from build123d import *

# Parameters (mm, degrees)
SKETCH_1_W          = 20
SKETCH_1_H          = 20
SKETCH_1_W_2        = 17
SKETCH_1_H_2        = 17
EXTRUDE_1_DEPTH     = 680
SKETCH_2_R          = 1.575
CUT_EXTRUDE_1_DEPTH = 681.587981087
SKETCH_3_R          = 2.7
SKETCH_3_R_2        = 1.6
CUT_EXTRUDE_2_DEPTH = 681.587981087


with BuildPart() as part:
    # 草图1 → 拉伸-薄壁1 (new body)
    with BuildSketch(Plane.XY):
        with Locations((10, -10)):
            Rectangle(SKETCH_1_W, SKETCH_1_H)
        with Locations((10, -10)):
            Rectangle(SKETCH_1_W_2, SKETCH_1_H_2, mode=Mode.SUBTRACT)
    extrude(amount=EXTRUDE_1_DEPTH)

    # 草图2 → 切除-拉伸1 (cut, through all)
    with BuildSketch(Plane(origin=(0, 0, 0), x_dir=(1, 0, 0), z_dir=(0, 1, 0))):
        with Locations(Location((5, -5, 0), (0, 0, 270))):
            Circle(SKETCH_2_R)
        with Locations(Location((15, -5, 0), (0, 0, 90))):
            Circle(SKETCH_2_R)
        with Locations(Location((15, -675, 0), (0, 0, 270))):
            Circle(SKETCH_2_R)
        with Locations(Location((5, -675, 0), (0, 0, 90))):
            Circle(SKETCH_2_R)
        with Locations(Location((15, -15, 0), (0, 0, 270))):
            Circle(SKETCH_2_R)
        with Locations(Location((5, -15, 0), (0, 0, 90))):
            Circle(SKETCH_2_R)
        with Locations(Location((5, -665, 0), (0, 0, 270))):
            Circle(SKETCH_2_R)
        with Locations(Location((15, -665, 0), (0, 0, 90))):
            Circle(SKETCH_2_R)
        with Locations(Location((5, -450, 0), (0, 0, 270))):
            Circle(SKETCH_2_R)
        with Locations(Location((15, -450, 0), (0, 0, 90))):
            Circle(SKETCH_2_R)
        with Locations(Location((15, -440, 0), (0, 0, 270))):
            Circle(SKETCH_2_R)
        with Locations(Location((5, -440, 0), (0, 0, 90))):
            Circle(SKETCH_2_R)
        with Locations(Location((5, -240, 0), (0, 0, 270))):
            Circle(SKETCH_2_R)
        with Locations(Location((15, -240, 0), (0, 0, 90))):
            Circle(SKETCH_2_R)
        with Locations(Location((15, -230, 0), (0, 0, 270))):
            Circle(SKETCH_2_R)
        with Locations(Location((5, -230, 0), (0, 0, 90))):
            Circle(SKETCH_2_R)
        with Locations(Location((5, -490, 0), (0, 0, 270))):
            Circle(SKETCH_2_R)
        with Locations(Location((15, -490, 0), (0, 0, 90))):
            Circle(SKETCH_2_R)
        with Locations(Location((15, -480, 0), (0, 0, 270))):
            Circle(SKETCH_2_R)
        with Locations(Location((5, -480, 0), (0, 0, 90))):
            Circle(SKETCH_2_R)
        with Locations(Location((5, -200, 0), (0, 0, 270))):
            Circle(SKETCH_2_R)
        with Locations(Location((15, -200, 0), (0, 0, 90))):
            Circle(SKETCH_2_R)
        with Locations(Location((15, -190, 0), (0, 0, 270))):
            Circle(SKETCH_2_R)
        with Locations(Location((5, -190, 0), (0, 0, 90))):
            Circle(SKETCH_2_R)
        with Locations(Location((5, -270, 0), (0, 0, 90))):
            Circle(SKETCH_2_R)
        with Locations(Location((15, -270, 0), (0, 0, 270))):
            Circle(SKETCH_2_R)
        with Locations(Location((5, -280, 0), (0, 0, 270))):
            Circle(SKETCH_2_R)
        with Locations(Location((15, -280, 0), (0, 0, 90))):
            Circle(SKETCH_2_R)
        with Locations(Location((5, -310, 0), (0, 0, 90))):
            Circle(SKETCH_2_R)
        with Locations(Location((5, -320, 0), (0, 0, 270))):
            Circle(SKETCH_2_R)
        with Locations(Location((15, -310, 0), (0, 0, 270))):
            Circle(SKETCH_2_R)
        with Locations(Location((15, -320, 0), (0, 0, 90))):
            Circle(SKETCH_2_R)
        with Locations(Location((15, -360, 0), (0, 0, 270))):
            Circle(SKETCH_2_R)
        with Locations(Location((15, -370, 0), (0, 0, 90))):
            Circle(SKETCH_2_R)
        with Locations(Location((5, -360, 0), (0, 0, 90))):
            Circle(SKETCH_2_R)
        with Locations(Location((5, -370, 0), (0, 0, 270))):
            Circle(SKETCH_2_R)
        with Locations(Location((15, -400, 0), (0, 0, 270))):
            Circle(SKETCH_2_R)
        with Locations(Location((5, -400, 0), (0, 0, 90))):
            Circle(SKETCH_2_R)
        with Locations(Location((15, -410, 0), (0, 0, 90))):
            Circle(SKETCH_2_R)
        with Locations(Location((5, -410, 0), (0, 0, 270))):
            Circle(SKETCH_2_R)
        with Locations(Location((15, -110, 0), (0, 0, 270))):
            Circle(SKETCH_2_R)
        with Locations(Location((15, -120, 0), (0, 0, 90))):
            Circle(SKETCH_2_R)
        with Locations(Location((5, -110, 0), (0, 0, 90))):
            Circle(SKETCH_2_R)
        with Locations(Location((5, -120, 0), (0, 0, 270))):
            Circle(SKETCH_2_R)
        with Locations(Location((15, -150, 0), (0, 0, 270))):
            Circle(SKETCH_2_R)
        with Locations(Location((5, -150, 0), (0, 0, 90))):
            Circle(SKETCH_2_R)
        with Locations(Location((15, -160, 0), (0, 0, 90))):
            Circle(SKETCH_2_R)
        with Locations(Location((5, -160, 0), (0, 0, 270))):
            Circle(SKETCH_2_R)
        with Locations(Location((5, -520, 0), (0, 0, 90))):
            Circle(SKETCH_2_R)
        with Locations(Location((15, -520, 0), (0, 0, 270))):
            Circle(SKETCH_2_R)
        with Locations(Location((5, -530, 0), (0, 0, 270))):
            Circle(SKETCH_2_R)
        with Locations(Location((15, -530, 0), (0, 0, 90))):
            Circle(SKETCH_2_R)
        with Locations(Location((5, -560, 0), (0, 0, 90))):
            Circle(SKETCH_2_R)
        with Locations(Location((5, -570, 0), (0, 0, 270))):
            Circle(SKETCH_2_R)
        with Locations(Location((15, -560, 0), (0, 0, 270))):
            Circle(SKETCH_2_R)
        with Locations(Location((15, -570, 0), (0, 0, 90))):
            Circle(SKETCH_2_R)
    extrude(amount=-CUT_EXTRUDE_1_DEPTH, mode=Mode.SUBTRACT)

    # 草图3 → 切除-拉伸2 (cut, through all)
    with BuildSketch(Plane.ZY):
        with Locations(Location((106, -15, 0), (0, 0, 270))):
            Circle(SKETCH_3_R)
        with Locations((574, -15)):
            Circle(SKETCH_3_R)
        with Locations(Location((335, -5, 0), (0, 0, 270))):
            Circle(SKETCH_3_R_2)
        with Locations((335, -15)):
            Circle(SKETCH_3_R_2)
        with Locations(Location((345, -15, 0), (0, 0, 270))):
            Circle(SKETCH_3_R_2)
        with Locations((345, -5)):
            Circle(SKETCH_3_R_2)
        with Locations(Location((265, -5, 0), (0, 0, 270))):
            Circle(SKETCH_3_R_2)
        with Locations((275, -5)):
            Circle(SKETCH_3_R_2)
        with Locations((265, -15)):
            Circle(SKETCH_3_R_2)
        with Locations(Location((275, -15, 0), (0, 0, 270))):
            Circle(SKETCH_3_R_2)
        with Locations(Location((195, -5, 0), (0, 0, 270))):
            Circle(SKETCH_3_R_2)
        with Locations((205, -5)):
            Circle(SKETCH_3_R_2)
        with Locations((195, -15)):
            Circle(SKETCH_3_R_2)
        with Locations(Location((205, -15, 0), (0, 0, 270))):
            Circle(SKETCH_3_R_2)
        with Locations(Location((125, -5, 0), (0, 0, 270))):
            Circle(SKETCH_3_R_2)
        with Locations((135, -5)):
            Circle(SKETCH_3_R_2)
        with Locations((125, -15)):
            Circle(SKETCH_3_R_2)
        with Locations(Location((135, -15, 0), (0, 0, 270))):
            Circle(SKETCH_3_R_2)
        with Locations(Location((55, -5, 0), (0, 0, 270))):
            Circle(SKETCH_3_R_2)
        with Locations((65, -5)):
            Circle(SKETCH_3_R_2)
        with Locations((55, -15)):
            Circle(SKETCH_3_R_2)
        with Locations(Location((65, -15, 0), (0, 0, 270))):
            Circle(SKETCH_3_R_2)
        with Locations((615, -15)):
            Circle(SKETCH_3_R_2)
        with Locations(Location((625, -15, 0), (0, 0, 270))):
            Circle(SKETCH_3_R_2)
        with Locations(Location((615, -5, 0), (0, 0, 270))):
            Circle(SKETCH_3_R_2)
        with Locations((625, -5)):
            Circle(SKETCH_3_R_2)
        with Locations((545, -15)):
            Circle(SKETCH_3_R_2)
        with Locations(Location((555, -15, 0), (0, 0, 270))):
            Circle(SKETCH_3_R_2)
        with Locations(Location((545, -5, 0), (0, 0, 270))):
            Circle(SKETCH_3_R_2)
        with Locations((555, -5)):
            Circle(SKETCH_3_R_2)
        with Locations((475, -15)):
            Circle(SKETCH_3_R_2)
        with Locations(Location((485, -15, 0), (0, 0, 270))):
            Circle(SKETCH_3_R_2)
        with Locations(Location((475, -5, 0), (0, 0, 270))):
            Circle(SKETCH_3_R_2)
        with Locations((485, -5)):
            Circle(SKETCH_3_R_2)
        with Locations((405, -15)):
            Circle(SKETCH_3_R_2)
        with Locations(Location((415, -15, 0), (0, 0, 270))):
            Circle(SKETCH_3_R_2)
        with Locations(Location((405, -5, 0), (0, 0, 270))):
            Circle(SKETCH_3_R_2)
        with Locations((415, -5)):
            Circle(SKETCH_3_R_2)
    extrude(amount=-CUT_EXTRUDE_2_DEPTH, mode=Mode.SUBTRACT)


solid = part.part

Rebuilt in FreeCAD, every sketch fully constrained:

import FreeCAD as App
import Part
import Sketcher
from FreeCAD import Vector


def add_polygon(sketch, points):
    """Adds a closed chain of lines whose ends are joined by coincident constraints."""
    first, n = sketch.GeometryCount, len(points)
    for a, b in zip(points, points[1:] + points[:1]):
        sketch.addGeometry(Part.LineSegment(App.Vector(*a, 0), App.Vector(*b, 0)), False)
    for i in range(n):
        sketch.addConstraint(Sketcher.Constraint("Coincident", first + i, 2, first + (i + 1) % n, 1))

doc = App.newDocument("Part")
body = doc.addObject("PartDesign::Body", "Body")

# Sketch on XY plane
sketch1 = body.newObject("Sketcher::SketchObject", "Sketch")
sketch1.AttachmentSupport = (doc.getObject("XY_Plane"), [""])
sketch1.MapMode = "FlatFace"
add_polygon(sketch1, [(0, 0), (0, -20), (20, -20), (20, 0)])  # lines 0-3
add_polygon(sketch1, [(18, -18), (2, -18), (2, -2), (18, -2)])  # lines 4-7
sketch1.addConstraint([
    Sketcher.Constraint("Vertical", 0),
    Sketcher.Constraint("Horizontal", 1),
    Sketcher.Constraint("Vertical", 2),
    Sketcher.Constraint("Horizontal", 3),
    Sketcher.Constraint("Horizontal", 4),
    Sketcher.Constraint("Vertical", 5),
    Sketcher.Constraint("Horizontal", 6),
    Sketcher.Constraint("Vertical", 7),
    Sketcher.Constraint("Coincident", 3, 2, -1, 1),
    Sketcher.Constraint("Equal", 3, 0),
    Sketcher.Constraint("Equal", 6, 5),
    Sketcher.Constraint("DistanceX", 1, 1, 1, 2, 20.0),
    Sketcher.Constraint("DistanceX", 4, 2, 4, 1, 17.0),
    Sketcher.Constraint("DistanceX", -1, 1, 4, 2, 1.5),
    Sketcher.Constraint("DistanceY", 4, 2, -1, 1, 18.5),
])
pad1 = body.newObject("PartDesign::Pad", "Pad")
pad1.Profile = sketch1
pad1.Length = 680

# Sketch on XZ plane
sketch2 = body.newObject("Sketcher::SketchObject", "Sketch001")
sketch2.AttachmentSupport = (doc.getObject("XZ_Plane"), [""])
sketch2.MapMode = "FlatFace"
sketch2.addGeometry([
    Part.Circle(Vector(5, 5, 0), Vector(0, 0, 1), 1.6),  # 0
    Part.Circle(Vector(15, 5, 0), Vector(0, 0, 1), 1.6),  # 1
    Part.Circle(Vector(15, 675, 0), Vector(0, 0, 1), 1.6),  # 2
    Part.Circle(Vector(5, 675, 0), Vector(0, 0, 1), 1.6),  # 3
    Part.Circle(Vector(15, 15, 0), Vector(0, 0, 1), 1.6),  # 4
    Part.Circle(Vector(5, 15, 0), Vector(0, 0, 1), 1.6),  # 5
    Part.Circle(Vector(5, 665, 0), Vector(0, 0, 1), 1.6),  # 6
    Part.Circle(Vector(15, 665, 0), Vector(0, 0, 1), 1.6),  # 7
    Part.Circle(Vector(5, 450, 0), Vector(0, 0, 1), 1.6),  # 8
    Part.Circle(Vector(15, 450, 0), Vector(0, 0, 1), 1.6),  # 9
    Part.Circle(Vector(15, 440, 0), Vector(0, 0, 1), 1.6),  # 10
    Part.Circle(Vector(5, 440, 0), Vector(0, 0, 1), 1.6),  # 11
    Part.Circle(Vector(5, 240, 0), Vector(0, 0, 1), 1.6),  # 12
    Part.Circle(Vector(15, 240, 0), Vector(0, 0, 1), 1.6),  # 13
    Part.Circle(Vector(15, 230, 0), Vector(0, 0, 1), 1.6),  # 14
    Part.Circle(Vector(5, 230, 0), Vector(0, 0, 1), 1.6),  # 15
    Part.Circle(Vector(5, 490, 0), Vector(0, 0, 1), 1.6),  # 16
    Part.Circle(Vector(15, 490, 0), Vector(0, 0, 1), 1.6),  # 17
    Part.Circle(Vector(15, 480, 0), Vector(0, 0, 1), 1.6),  # 18
    Part.Circle(Vector(5, 480, 0), Vector(0, 0, 1), 1.6),  # 19
    Part.Circle(Vector(5, 200, 0), Vector(0, 0, 1), 1.6),  # 20
    Part.Circle(Vector(15, 200, 0), Vector(0, 0, 1), 1.6),  # 21
    Part.Circle(Vector(15, 190, 0), Vector(0, 0, 1), 1.6),  # 22
    Part.Circle(Vector(5, 190, 0), Vector(0, 0, 1), 1.6),  # 23
    Part.Circle(Vector(5, 270, 0), Vector(0, 0, 1), 1.6),  # 24
    Part.Circle(Vector(15, 270, 0), Vector(0, 0, 1), 1.6),  # 25
    Part.Circle(Vector(5, 280, 0), Vector(0, 0, 1), 1.6),  # 26
    Part.Circle(Vector(15, 280, 0), Vector(0, 0, 1), 1.6),  # 27
    Part.Circle(Vector(5, 310, 0), Vector(0, 0, 1), 1.6),  # 28
    Part.Circle(Vector(5, 320, 0), Vector(0, 0, 1), 1.6),  # 29
    Part.Circle(Vector(15, 310, 0), Vector(0, 0, 1), 1.6),  # 30
    Part.Circle(Vector(15, 320, 0), Vector(0, 0, 1), 1.6),  # 31
    Part.Circle(Vector(15, 360, 0), Vector(0, 0, 1), 1.6),  # 32
    Part.Circle(Vector(15, 370, 0), Vector(0, 0, 1), 1.6),  # 33
    Part.Circle(Vector(5, 360, 0), Vector(0, 0, 1), 1.6),  # 34
    Part.Circle(Vector(5, 370, 0), Vector(0, 0, 1), 1.6),  # 35
    Part.Circle(Vector(15, 400, 0), Vector(0, 0, 1), 1.6),  # 36
    Part.Circle(Vector(5, 400, 0), Vector(0, 0, 1), 1.6),  # 37
    Part.Circle(Vector(15, 410, 0), Vector(0, 0, 1), 1.6),  # 38
    Part.Circle(Vector(5, 410, 0), Vector(0, 0, 1), 1.6),  # 39
    Part.Circle(Vector(15, 110, 0), Vector(0, 0, 1), 1.6),  # 40
    Part.Circle(Vector(15, 120, 0), Vector(0, 0, 1), 1.6),  # 41
    Part.Circle(Vector(5, 110, 0), Vector(0, 0, 1), 1.6),  # 42
    Part.Circle(Vector(5, 120, 0), Vector(0, 0, 1), 1.6),  # 43
    Part.Circle(Vector(15, 150, 0), Vector(0, 0, 1), 1.6),  # 44
    Part.Circle(Vector(5, 150, 0), Vector(0, 0, 1), 1.6),  # 45
    Part.Circle(Vector(15, 160, 0), Vector(0, 0, 1), 1.6),  # 46
    Part.Circle(Vector(5, 160, 0), Vector(0, 0, 1), 1.6),  # 47
    Part.Circle(Vector(5, 520, 0), Vector(0, 0, 1), 1.6),  # 48
    Part.Circle(Vector(15, 520, 0), Vector(0, 0, 1), 1.6),  # 49
    Part.Circle(Vector(5, 530, 0), Vector(0, 0, 1), 1.6),  # 50
    Part.Circle(Vector(15, 530, 0), Vector(0, 0, 1), 1.6),  # 51
    Part.Circle(Vector(5, 560, 0), Vector(0, 0, 1), 1.6),  # 52
    Part.Circle(Vector(5, 570, 0), Vector(0, 0, 1), 1.6),  # 53
    Part.Circle(Vector(15, 560, 0), Vector(0, 0, 1), 1.6),  # 54
    Part.Circle(Vector(15, 570, 0), Vector(0, 0, 1), 1.6),  # 55
], False)
sketch2.addConstraint([
    Sketcher.Constraint("Equal", 0, 1),
    Sketcher.Constraint("Equal", 1, 2),
    Sketcher.Constraint("Equal", 2, 3),
    Sketcher.Constraint("Equal", 3, 4),
    Sketcher.Constraint("Equal", 4, 5),
    Sketcher.Constraint("Equal", 5, 6),
    Sketcher.Constraint("Equal", 6, 7),
    Sketcher.Constraint("Equal", 7, 8),
    Sketcher.Constraint("Equal", 8, 9),
    Sketcher.Constraint("Equal", 9, 10),
    Sketcher.Constraint("Equal", 10, 11),
    Sketcher.Constraint("Equal", 11, 12),
    Sketcher.Constraint("Equal", 12, 13),
    Sketcher.Constraint("Equal", 13, 14),
    Sketcher.Constraint("Equal", 14, 15),
    Sketcher.Constraint("Equal", 15, 16),
    Sketcher.Constraint("Equal", 16, 17),
    Sketcher.Constraint("Equal", 17, 18),
    Sketcher.Constraint("Equal", 18, 19),
    Sketcher.Constraint("Equal", 19, 20),
    Sketcher.Constraint("Equal", 20, 21),
    Sketcher.Constraint("Equal", 21, 22),
    Sketcher.Constraint("Equal", 22, 23),
    Sketcher.Constraint("Equal", 23, 24),
    Sketcher.Constraint("Equal", 24, 25),
    Sketcher.Constraint("Equal", 25, 26),
    Sketcher.Constraint("Equal", 26, 27),
    Sketcher.Constraint("Equal", 27, 28),
    Sketcher.Constraint("Equal", 28, 29),
    Sketcher.Constraint("Equal", 29, 30),
    Sketcher.Constraint("Equal", 30, 31),
    Sketcher.Constraint("Equal", 31, 32),
    Sketcher.Constraint("Equal", 32, 33),
    Sketcher.Constraint("Equal", 33, 34),
    Sketcher.Constraint("Equal", 34, 35),
    Sketcher.Constraint("Equal", 35, 36),
    Sketcher.Constraint("Equal", 36, 37),
    Sketcher.Constraint("Equal", 37, 38),
    Sketcher.Constraint("Equal", 38, 39),
    Sketcher.Constraint("Equal", 39, 40),
    Sketcher.Constraint("Equal", 40, 41),
    Sketcher.Constraint("Equal", 41, 42),
    Sketcher.Constraint("Equal", 42, 43),
    Sketcher.Constraint("Equal", 43, 44),
    Sketcher.Constraint("Equal", 44, 45),
    Sketcher.Constraint("Equal", 45, 46),
    Sketcher.Constraint("Equal", 46, 47),
    Sketcher.Constraint("Equal", 47, 48),
    Sketcher.Constraint("Equal", 48, 49),
    Sketcher.Constraint("Equal", 49, 50),
    Sketcher.Constraint("Equal", 50, 51),
    Sketcher.Constraint("Equal", 51, 52),
    Sketcher.Constraint("Equal", 52, 53),
    Sketcher.Constraint("Equal", 53, 54),
    Sketcher.Constraint("Equal", 54, 55),
    Sketcher.Constraint("Horizontal", 0, 3, 1, 3),
    Sketcher.Constraint("Horizontal", 2, 3, 3, 3),
    Sketcher.Constraint("Horizontal", 4, 3, 5, 3),
    Sketcher.Constraint("Horizontal", 6, 3, 7, 3),
    Sketcher.Constraint("Horizontal", 8, 3, 9, 3),
    Sketcher.Constraint("Horizontal", 10, 3, 11, 3),
    Sketcher.Constraint("Horizontal", 12, 3, 13, 3),
    Sketcher.Constraint("Horizontal", 14, 3, 15, 3),
    Sketcher.Constraint("Horizontal", 16, 3, 17, 3),
    Sketcher.Constraint("Horizontal", 18, 3, 19, 3),
    Sketcher.Constraint("Horizontal", 20, 3, 21, 3),
    Sketcher.Constraint("Horizontal", 22, 3, 23, 3),
    Sketcher.Constraint("Horizontal", 24, 3, 25, 3),
    Sketcher.Constraint("Horizontal", 26, 3, 27, 3),
    Sketcher.Constraint("Horizontal", 28, 3, 30, 3),
    Sketcher.Constraint("Horizontal", 29, 3, 31, 3),
    Sketcher.Constraint("Horizontal", 32, 3, 34, 3),
    Sketcher.Constraint("Horizontal", 33, 3, 35, 3),
    Sketcher.Constraint("Horizontal", 36, 3, 37, 3),
    Sketcher.Constraint("Horizontal", 38, 3, 39, 3),
    Sketcher.Constraint("Horizontal", 40, 3, 42, 3),
    Sketcher.Constraint("Horizontal", 41, 3, 43, 3),
    Sketcher.Constraint("Horizontal", 44, 3, 45, 3),
    Sketcher.Constraint("Horizontal", 46, 3, 47, 3),
    Sketcher.Constraint("Horizontal", 48, 3, 49, 3),
    Sketcher.Constraint("Horizontal", 50, 3, 51, 3),
    Sketcher.Constraint("Horizontal", 52, 3, 54, 3),
    Sketcher.Constraint("Horizontal", 53, 3, 55, 3),
    Sketcher.Constraint("Vertical", 1, 3, 2, 3),
    Sketcher.Constraint("Vertical", 0, 3, 3, 3),
    Sketcher.Constraint("Vertical", 2, 3, 4, 3),
    Sketcher.Constraint("Vertical", 3, 3, 5, 3),
    Sketcher.Constraint("Vertical", 5, 3, 6, 3),
    Sketcher.Constraint("Vertical", 4, 3, 7, 3),
    Sketcher.Constraint("Vertical", 6, 3, 8, 3),
    Sketcher.Constraint("Vertical", 7, 3, 9, 3),
    Sketcher.Constraint("Vertical", 9, 3, 10, 3),
    Sketcher.Constraint("Vertical", 8, 3, 11, 3),
    Sketcher.Constraint("Vertical", 11, 3, 12, 3),
    Sketcher.Constraint("Vertical", 10, 3, 13, 3),
    Sketcher.Constraint("Vertical", 13, 3, 14, 3),
    Sketcher.Constraint("Vertical", 12, 3, 15, 3),
    Sketcher.Constraint("Vertical", 15, 3, 16, 3),
    Sketcher.Constraint("Vertical", 14, 3, 17, 3),
    Sketcher.Constraint("Vertical", 17, 3, 18, 3),
    Sketcher.Constraint("Vertical", 16, 3, 19, 3),
    Sketcher.Constraint("Vertical", 19, 3, 20, 3),
    Sketcher.Constraint("Vertical", 18, 3, 21, 3),
    Sketcher.Constraint("Vertical", 21, 3, 22, 3),
    Sketcher.Constraint("Vertical", 20, 3, 23, 3),
    Sketcher.Constraint("Vertical", 23, 3, 24, 3),
    Sketcher.Constraint("Vertical", 22, 3, 25, 3),
    Sketcher.Constraint("Vertical", 24, 3, 26, 3),
    Sketcher.Constraint("Vertical", 25, 3, 27, 3),
    Sketcher.Constraint("Vertical", 26, 3, 28, 3),
    Sketcher.Constraint("Vertical", 28, 3, 29, 3),
    Sketcher.Constraint("Vertical", 27, 3, 30, 3),
    Sketcher.Constraint("Vertical", 30, 3, 31, 3),
    Sketcher.Constraint("Vertical", 31, 3, 32, 3),
    Sketcher.Constraint("Vertical", 32, 3, 33, 3),
    Sketcher.Constraint("Vertical", 29, 3, 34, 3),
    Sketcher.Constraint("Vertical", 34, 3, 35, 3),
    Sketcher.Constraint("Vertical", 33, 3, 36, 3),
    Sketcher.Constraint("Vertical", 35, 3, 37, 3),
    Sketcher.Constraint("Vertical", 36, 3, 38, 3),
    Sketcher.Constraint("Vertical", 37, 3, 39, 3),
    Sketcher.Constraint("Vertical", 38, 3, 40, 3),
    Sketcher.Constraint("Vertical", 40, 3, 41, 3),
    Sketcher.Constraint("Vertical", 39, 3, 42, 3),
    Sketcher.Constraint("Vertical", 42, 3, 43, 3),
    Sketcher.Constraint("Vertical", 41, 3, 44, 3),
    Sketcher.Constraint("Vertical", 43, 3, 45, 3),
    Sketcher.Constraint("Vertical", 44, 3, 46, 3),
    Sketcher.Constraint("Vertical", 45, 3, 47, 3),
    Sketcher.Constraint("Vertical", 47, 3, 48, 3),
    Sketcher.Constraint("Vertical", 46, 3, 49, 3),
    Sketcher.Constraint("Vertical", 48, 3, 50, 3),
    Sketcher.Constraint("Vertical", 49, 3, 51, 3),
    Sketcher.Constraint("Vertical", 50, 3, 52, 3),
    Sketcher.Constraint("Vertical", 52, 3, 53, 3),
    Sketcher.Constraint("Vertical", 51, 3, 54, 3),
    Sketcher.Constraint("Vertical", 54, 3, 55, 3),
    Sketcher.Constraint("Diameter", 0, 3.15),
    Sketcher.Constraint("DistanceX", -1, 1, 0, 3, 5.0),
    Sketcher.Constraint("DistanceY", -1, 1, 0, 3, 5.0),
    Sketcher.Constraint("DistanceX", -1, 1, 1, 3, 15.0),
    Sketcher.Constraint("DistanceY", -1, 1, 2, 3, 675.0),
    Sketcher.Constraint("DistanceY", -1, 1, 4, 3, 15.0),
    Sketcher.Constraint("DistanceY", -1, 1, 6, 3, 665.0),
    Sketcher.Constraint("DistanceY", -1, 1, 8, 3, 450.0),
    Sketcher.Constraint("DistanceY", -1, 1, 10, 3, 440.0),
    Sketcher.Constraint("DistanceY", -1, 1, 12, 3, 240.0),
    Sketcher.Constraint("DistanceY", -1, 1, 14, 3, 230.0),
    Sketcher.Constraint("DistanceY", -1, 1, 16, 3, 490.0),
    Sketcher.Constraint("DistanceY", -1, 1, 18, 3, 480.0),
    Sketcher.Constraint("DistanceY", -1, 1, 20, 3, 200.0),
    Sketcher.Constraint("DistanceY", -1, 1, 22, 3, 190.0),
    Sketcher.Constraint("DistanceY", -1, 1, 24, 3, 270.0),
    Sketcher.Constraint("DistanceY", -1, 1, 26, 3, 280.0),
    Sketcher.Constraint("DistanceY", -1, 1, 28, 3, 310.0),
    Sketcher.Constraint("DistanceY", -1, 1, 29, 3, 320.0),
    Sketcher.Constraint("DistanceY", -1, 1, 32, 3, 360.0),
    Sketcher.Constraint("DistanceY", -1, 1, 33, 3, 370.0),
    Sketcher.Constraint("DistanceY", -1, 1, 36, 3, 400.0),
    Sketcher.Constraint("DistanceY", -1, 1, 38, 3, 410.0),
    Sketcher.Constraint("DistanceY", -1, 1, 40, 3, 110.0),
    Sketcher.Constraint("DistanceY", -1, 1, 41, 3, 120.0),
    Sketcher.Constraint("DistanceY", -1, 1, 44, 3, 150.0),
    Sketcher.Constraint("DistanceY", -1, 1, 46, 3, 160.0),
    Sketcher.Constraint("DistanceY", -1, 1, 48, 3, 520.0),
    Sketcher.Constraint("DistanceY", -1, 1, 50, 3, 530.0),
    Sketcher.Constraint("DistanceY", -1, 1, 52, 3, 560.0),
    Sketcher.Constraint("DistanceY", -1, 1, 53, 3, 570.0),
])
pocket1 = body.newObject("PartDesign::Pocket", "Pocket")
pocket1.Profile = sketch2
pocket1.Type = "ThroughAll"
pocket1.Reversed = True

# Sketch on YZ plane
sketch3 = body.newObject("Sketcher::SketchObject", "Sketch002")
sketch3.AttachmentSupport = (doc.getObject("YZ_Plane"), [""])
sketch3.MapMode = "FlatFace"
sketch3.addGeometry([
    Part.Circle(Vector(-15, 106, 0), Vector(0, 0, 1), 2.7),  # 0
    Part.Circle(Vector(-15, 574, 0), Vector(0, 0, 1), 2.7),  # 1
    Part.Circle(Vector(-5, 335, 0), Vector(0, 0, 1), 1.6),  # 2
    Part.Circle(Vector(-15, 335, 0), Vector(0, 0, 1), 1.6),  # 3
    Part.Circle(Vector(-15, 345, 0), Vector(0, 0, 1), 1.6),  # 4
    Part.Circle(Vector(-5, 345, 0), Vector(0, 0, 1), 1.6),  # 5
    Part.Circle(Vector(-5, 265, 0), Vector(0, 0, 1), 1.6),  # 6
    Part.Circle(Vector(-5, 275, 0), Vector(0, 0, 1), 1.6),  # 7
    Part.Circle(Vector(-15, 265, 0), Vector(0, 0, 1), 1.6),  # 8
    Part.Circle(Vector(-15, 275, 0), Vector(0, 0, 1), 1.6),  # 9
    Part.Circle(Vector(-5, 195, 0), Vector(0, 0, 1), 1.6),  # 10
    Part.Circle(Vector(-5, 205, 0), Vector(0, 0, 1), 1.6),  # 11
    Part.Circle(Vector(-15, 195, 0), Vector(0, 0, 1), 1.6),  # 12
    Part.Circle(Vector(-15, 205, 0), Vector(0, 0, 1), 1.6),  # 13
    Part.Circle(Vector(-5, 125, 0), Vector(0, 0, 1), 1.6),  # 14
    Part.Circle(Vector(-5, 135, 0), Vector(0, 0, 1), 1.6),  # 15
    Part.Circle(Vector(-15, 125, 0), Vector(0, 0, 1), 1.6),  # 16
    Part.Circle(Vector(-15, 135, 0), Vector(0, 0, 1), 1.6),  # 17
    Part.Circle(Vector(-5, 55, 0), Vector(0, 0, 1), 1.6),  # 18
    Part.Circle(Vector(-5, 65, 0), Vector(0, 0, 1), 1.6),  # 19
    Part.Circle(Vector(-15, 55, 0), Vector(0, 0, 1), 1.6),  # 20
    Part.Circle(Vector(-15, 65, 0), Vector(0, 0, 1), 1.6),  # 21
    Part.Circle(Vector(-15, 615, 0), Vector(0, 0, 1), 1.6),  # 22
    Part.Circle(Vector(-15, 625, 0), Vector(0, 0, 1), 1.6),  # 23
    Part.Circle(Vector(-5, 615, 0), Vector(0, 0, 1), 1.6),  # 24
    Part.Circle(Vector(-5, 625, 0), Vector(0, 0, 1), 1.6),  # 25
    Part.Circle(Vector(-15, 545, 0), Vector(0, 0, 1), 1.6),  # 26
    Part.Circle(Vector(-15, 555, 0), Vector(0, 0, 1), 1.6),  # 27
    Part.Circle(Vector(-5, 545, 0), Vector(0, 0, 1), 1.6),  # 28
    Part.Circle(Vector(-5, 555, 0), Vector(0, 0, 1), 1.6),  # 29
    Part.Circle(Vector(-15, 475, 0), Vector(0, 0, 1), 1.6),  # 30
    Part.Circle(Vector(-15, 485, 0), Vector(0, 0, 1), 1.6),  # 31
    Part.Circle(Vector(-5, 475, 0), Vector(0, 0, 1), 1.6),  # 32
    Part.Circle(Vector(-5, 485, 0), Vector(0, 0, 1), 1.6),  # 33
    Part.Circle(Vector(-15, 405, 0), Vector(0, 0, 1), 1.6),  # 34
    Part.Circle(Vector(-15, 415, 0), Vector(0, 0, 1), 1.6),  # 35
    Part.Circle(Vector(-5, 405, 0), Vector(0, 0, 1), 1.6),  # 36
    Part.Circle(Vector(-5, 415, 0), Vector(0, 0, 1), 1.6),  # 37
], False)
sketch3.addConstraint([
    Sketcher.Constraint("Equal", 0, 1),
    Sketcher.Constraint("Equal", 2, 3),
    Sketcher.Constraint("Equal", 3, 4),
    Sketcher.Constraint("Equal", 4, 5),
    Sketcher.Constraint("Equal", 5, 6),
    Sketcher.Constraint("Equal", 6, 7),
    Sketcher.Constraint("Equal", 7, 8),
    Sketcher.Constraint("Equal", 8, 9),
    Sketcher.Constraint("Equal", 9, 10),
    Sketcher.Constraint("Equal", 10, 11),
    Sketcher.Constraint("Equal", 11, 12),
    Sketcher.Constraint("Equal", 12, 13),
    Sketcher.Constraint("Equal", 13, 14),
    Sketcher.Constraint("Equal", 14, 15),
    Sketcher.Constraint("Equal", 15, 16),
    Sketcher.Constraint("Equal", 16, 17),
    Sketcher.Constraint("Equal", 17, 18),
    Sketcher.Constraint("Equal", 18, 19),
    Sketcher.Constraint("Equal", 19, 20),
    Sketcher.Constraint("Equal", 20, 21),
    Sketcher.Constraint("Equal", 21, 22),
    Sketcher.Constraint("Equal", 22, 23),
    Sketcher.Constraint("Equal", 23, 24),
    Sketcher.Constraint("Equal", 24, 25),
    Sketcher.Constraint("Equal", 25, 26),
    Sketcher.Constraint("Equal", 26, 27),
    Sketcher.Constraint("Equal", 27, 28),
    Sketcher.Constraint("Equal", 28, 29),
    Sketcher.Constraint("Equal", 29, 30),
    Sketcher.Constraint("Equal", 30, 31),
    Sketcher.Constraint("Equal", 31, 32),
    Sketcher.Constraint("Equal", 32, 33),
    Sketcher.Constraint("Equal", 33, 34),
    Sketcher.Constraint("Equal", 34, 35),
    Sketcher.Constraint("Equal", 35, 36),
    Sketcher.Constraint("Equal", 36, 37),
    Sketcher.Constraint("Horizontal", 2, 3, 3, 3),
    Sketcher.Constraint("Horizontal", 4, 3, 5, 3),
    Sketcher.Constraint("Horizontal", 6, 3, 8, 3),
    Sketcher.Constraint("Horizontal", 7, 3, 9, 3),
    Sketcher.Constraint("Horizontal", 10, 3, 12, 3),
    Sketcher.Constraint("Horizontal", 11, 3, 13, 3),
    Sketcher.Constraint("Horizontal", 14, 3, 16, 3),
    Sketcher.Constraint("Horizontal", 15, 3, 17, 3),
    Sketcher.Constraint("Horizontal", 18, 3, 20, 3),
    Sketcher.Constraint("Horizontal", 19, 3, 21, 3),
    Sketcher.Constraint("Horizontal", 22, 3, 24, 3),
    Sketcher.Constraint("Horizontal", 23, 3, 25, 3),
    Sketcher.Constraint("Horizontal", 26, 3, 28, 3),
    Sketcher.Constraint("Horizontal", 27, 3, 29, 3),
    Sketcher.Constraint("Horizontal", 30, 3, 32, 3),
    Sketcher.Constraint("Horizontal", 31, 3, 33, 3),
    Sketcher.Constraint("Horizontal", 34, 3, 36, 3),
    Sketcher.Constraint("Horizontal", 35, 3, 37, 3),
    Sketcher.Constraint("Vertical", 0, 3, 1, 3),
    Sketcher.Constraint("Vertical", 1, 3, 3, 3),
    Sketcher.Constraint("Vertical", 3, 3, 4, 3),
    Sketcher.Constraint("Vertical", 2, 3, 5, 3),
    Sketcher.Constraint("Vertical", 5, 3, 6, 3),
    Sketcher.Constraint("Vertical", 6, 3, 7, 3),
    Sketcher.Constraint("Vertical", 4, 3, 8, 3),
    Sketcher.Constraint("Vertical", 8, 3, 9, 3),
    Sketcher.Constraint("Vertical", 7, 3, 10, 3),
    Sketcher.Constraint("Vertical", 10, 3, 11, 3),
    Sketcher.Constraint("Vertical", 9, 3, 12, 3),
    Sketcher.Constraint("Vertical", 12, 3, 13, 3),
    Sketcher.Constraint("Vertical", 11, 3, 14, 3),
    Sketcher.Constraint("Vertical", 14, 3, 15, 3),
    Sketcher.Constraint("Vertical", 13, 3, 16, 3),
    Sketcher.Constraint("Vertical", 16, 3, 17, 3),
    Sketcher.Constraint("Vertical", 15, 3, 18, 3),
    Sketcher.Constraint("Vertical", 18, 3, 19, 3),
    Sketcher.Constraint("Vertical", 17, 3, 20, 3),
    Sketcher.Constraint("Vertical", 20, 3, 21, 3),
    Sketcher.Constraint("Vertical", 21, 3, 22, 3),
    Sketcher.Constraint("Vertical", 22, 3, 23, 3),
    Sketcher.Constraint("Vertical", 19, 3, 24, 3),
    Sketcher.Constraint("Vertical", 24, 3, 25, 3),
    Sketcher.Constraint("Vertical", 23, 3, 26, 3),
    Sketcher.Constraint("Vertical", 26, 3, 27, 3),
    Sketcher.Constraint("Vertical", 25, 3, 28, 3),
    Sketcher.Constraint("Vertical", 28, 3, 29, 3),
    Sketcher.Constraint("Vertical", 27, 3, 30, 3),
    Sketcher.Constraint("Vertical", 30, 3, 31, 3),
    Sketcher.Constraint("Vertical", 29, 3, 32, 3),
    Sketcher.Constraint("Vertical", 32, 3, 33, 3),
    Sketcher.Constraint("Vertical", 31, 3, 34, 3),
    Sketcher.Constraint("Vertical", 34, 3, 35, 3),
    Sketcher.Constraint("Vertical", 33, 3, 36, 3),
    Sketcher.Constraint("Vertical", 36, 3, 37, 3),
    Sketcher.Constraint("Diameter", 0, 5.4),
    Sketcher.Constraint("Diameter", 2, 3.2),
    Sketcher.Constraint("DistanceX", 0, 3, -1, 1, 15.0),
    Sketcher.Constraint("DistanceY", -1, 1, 0, 3, 106.0),
    Sketcher.Constraint("DistanceY", -1, 1, 1, 3, 574.0),
    Sketcher.Constraint("DistanceX", 2, 3, -1, 1, 5.0),
    Sketcher.Constraint("DistanceY", -1, 1, 2, 3, 335.0),
    Sketcher.Constraint("DistanceY", -1, 1, 4, 3, 345.0),
    Sketcher.Constraint("DistanceY", -1, 1, 6, 3, 265.0),
    Sketcher.Constraint("DistanceY", -1, 1, 7, 3, 275.0),
    Sketcher.Constraint("DistanceY", -1, 1, 10, 3, 195.0),
    Sketcher.Constraint("DistanceY", -1, 1, 11, 3, 205.0),
    Sketcher.Constraint("DistanceY", -1, 1, 14, 3, 125.0),
    Sketcher.Constraint("DistanceY", -1, 1, 15, 3, 135.0),
    Sketcher.Constraint("DistanceY", -1, 1, 18, 3, 55.0),
    Sketcher.Constraint("DistanceY", -1, 1, 19, 3, 65.0),
    Sketcher.Constraint("DistanceY", -1, 1, 22, 3, 615.0),
    Sketcher.Constraint("DistanceY", -1, 1, 23, 3, 625.0),
    Sketcher.Constraint("DistanceY", -1, 1, 26, 3, 545.0),
    Sketcher.Constraint("DistanceY", -1, 1, 27, 3, 555.0),
    Sketcher.Constraint("DistanceY", -1, 1, 30, 3, 475.0),
    Sketcher.Constraint("DistanceY", -1, 1, 31, 3, 485.0),
    Sketcher.Constraint("DistanceY", -1, 1, 34, 3, 405.0),
    Sketcher.Constraint("DistanceY", -1, 1, 35, 3, 415.0),
])
pocket2 = body.newObject("PartDesign::Pocket", "Pocket001")
pocket2.Profile = sketch3
pocket2.Type = "ThroughAll"
pocket2.Reversed = True

doc.recompute()
